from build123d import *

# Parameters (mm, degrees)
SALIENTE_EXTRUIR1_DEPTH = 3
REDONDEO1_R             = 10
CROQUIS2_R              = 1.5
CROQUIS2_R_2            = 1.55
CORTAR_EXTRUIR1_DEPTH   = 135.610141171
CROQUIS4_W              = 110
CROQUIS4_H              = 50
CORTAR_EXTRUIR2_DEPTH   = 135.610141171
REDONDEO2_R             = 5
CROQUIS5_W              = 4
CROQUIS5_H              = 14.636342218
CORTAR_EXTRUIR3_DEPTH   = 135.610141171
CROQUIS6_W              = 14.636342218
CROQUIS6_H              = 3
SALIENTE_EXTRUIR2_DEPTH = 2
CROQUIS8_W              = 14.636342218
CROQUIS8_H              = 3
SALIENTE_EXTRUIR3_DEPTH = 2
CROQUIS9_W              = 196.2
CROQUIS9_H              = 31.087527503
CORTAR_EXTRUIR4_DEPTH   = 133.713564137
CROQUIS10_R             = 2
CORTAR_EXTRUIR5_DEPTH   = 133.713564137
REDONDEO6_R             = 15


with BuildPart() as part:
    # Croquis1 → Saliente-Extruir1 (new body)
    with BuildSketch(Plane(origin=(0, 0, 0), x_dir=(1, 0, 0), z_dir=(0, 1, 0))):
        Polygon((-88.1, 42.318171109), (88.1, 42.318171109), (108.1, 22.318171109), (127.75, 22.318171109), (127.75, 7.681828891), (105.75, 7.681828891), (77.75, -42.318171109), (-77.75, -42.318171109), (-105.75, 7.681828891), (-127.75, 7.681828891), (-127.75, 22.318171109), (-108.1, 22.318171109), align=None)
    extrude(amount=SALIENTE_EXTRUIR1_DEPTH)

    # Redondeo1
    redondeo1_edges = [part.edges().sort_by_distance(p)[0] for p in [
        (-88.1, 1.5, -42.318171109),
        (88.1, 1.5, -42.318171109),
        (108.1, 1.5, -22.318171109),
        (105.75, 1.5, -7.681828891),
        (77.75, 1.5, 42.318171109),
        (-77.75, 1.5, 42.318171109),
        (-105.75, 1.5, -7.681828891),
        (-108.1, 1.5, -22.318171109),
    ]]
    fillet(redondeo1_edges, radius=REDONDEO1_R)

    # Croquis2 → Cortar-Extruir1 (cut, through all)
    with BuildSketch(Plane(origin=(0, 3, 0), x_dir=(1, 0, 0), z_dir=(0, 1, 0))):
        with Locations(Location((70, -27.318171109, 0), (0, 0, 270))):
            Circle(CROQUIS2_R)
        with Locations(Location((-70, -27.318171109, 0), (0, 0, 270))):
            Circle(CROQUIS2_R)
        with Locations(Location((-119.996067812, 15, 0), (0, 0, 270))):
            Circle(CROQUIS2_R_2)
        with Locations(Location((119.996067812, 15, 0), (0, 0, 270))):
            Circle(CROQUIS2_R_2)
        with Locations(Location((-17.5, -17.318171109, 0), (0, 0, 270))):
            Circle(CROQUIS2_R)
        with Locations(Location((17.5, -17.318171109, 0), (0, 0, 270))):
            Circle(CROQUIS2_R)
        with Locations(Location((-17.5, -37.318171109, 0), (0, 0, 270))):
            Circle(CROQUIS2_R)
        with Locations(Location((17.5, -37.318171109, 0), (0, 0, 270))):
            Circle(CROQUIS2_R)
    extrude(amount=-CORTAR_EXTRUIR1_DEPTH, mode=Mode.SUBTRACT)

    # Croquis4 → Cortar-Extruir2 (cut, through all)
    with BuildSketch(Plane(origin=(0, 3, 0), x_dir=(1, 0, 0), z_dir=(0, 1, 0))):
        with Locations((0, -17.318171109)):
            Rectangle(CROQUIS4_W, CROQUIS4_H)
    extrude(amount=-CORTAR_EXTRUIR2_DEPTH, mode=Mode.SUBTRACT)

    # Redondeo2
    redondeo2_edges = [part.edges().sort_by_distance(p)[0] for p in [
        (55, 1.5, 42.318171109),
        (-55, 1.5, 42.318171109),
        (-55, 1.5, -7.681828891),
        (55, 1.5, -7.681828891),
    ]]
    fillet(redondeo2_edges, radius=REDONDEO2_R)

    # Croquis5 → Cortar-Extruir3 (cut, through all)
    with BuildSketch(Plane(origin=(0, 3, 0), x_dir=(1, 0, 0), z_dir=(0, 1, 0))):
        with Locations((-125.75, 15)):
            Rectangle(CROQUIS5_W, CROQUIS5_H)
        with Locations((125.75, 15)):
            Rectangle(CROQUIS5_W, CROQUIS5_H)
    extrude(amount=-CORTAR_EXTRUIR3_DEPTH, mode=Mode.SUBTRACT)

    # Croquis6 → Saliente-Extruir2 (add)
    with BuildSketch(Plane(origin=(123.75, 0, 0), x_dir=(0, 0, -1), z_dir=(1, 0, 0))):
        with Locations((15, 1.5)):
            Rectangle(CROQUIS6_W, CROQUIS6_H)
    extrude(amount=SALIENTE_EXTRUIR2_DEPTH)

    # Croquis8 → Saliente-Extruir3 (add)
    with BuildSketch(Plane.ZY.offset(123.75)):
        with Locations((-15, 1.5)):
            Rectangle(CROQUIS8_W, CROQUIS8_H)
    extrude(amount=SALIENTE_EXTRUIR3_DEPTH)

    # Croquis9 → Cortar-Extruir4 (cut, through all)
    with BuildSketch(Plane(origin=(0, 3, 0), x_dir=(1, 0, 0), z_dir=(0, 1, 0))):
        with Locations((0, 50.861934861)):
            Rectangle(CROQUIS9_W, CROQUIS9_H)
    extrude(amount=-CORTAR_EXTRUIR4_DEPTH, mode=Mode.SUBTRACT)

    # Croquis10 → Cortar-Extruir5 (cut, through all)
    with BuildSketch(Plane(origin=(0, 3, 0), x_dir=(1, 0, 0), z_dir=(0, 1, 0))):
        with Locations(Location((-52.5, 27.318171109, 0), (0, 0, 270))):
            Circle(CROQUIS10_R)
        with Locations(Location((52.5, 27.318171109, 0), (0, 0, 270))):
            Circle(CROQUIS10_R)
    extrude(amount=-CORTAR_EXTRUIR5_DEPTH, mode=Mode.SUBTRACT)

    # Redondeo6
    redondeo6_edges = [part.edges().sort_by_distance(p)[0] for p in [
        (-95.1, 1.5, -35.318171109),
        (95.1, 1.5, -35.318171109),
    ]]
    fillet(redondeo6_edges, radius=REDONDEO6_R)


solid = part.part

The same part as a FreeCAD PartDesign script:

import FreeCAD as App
import Part
import Sketcher
Q = App.Units.Quantity


def edges_at(feature, points):
    """Names of the edges that pass closest to the given points."""
    edges = feature.Shape.Edges
    near = lambda p: min(range(len(edges)), key=lambda i: edges[i].distToShape(Part.Vertex(*p))[0])
    return sorted({f"Edge{near(p) + 1}" for p in points})

doc = App.newDocument("Part")
params = doc.addObject("Spreadsheet::Sheet", "Params")
for row, (alias, value) in enumerate([
    ("sketch1_width", "22 mm"),
    ("sketch1_width2", "176.2 mm"),
    ("sketch1_width3", "155.5 mm"),
    ("pad1_length", "3 mm"),
    ("fillet_radius", "10 mm"),
    ("sketch2_diameter", "3 mm"),
    ("sketch2_diameter2", "3.1 mm"),
    ("sketch3_width", "110 mm"),
    ("sketch3_height", "50 mm"),
    ("fillet2_radius", "5 mm"),
    ("sketch4_width", "4 mm"),
    ("sketch5_width", "3 mm"),
    ("pad2_length", "2 mm"),
    ("sketch6_width", "3 mm"),
    ("pad3_length", "2 mm"),
    ("sketch7_width", "196.2 mm"),
    ("sketch8_diameter", "4 mm"),
    ("fillet3_radius", "15 mm"),
], start=1):
    params.set(f"A{row}", alias)
    params.set(f"B{row}", "=" + value)
    params.setAlias(f"B{row}", alias)

body = doc.addObject("PartDesign::Body", "Body")

# Sketch on XZ plane
sketch1 = body.newObject("Sketcher::SketchObject", "Sketch")
sketch1.AttachmentSupport = (doc.getObject("XZ_Plane"), [""])
sketch1.MapMode = "FlatFace"
sketch1.addGeometry([
    Part.LineSegment(App.Vector(88, -42, 0), App.Vector(-88, -42, 0)),  # 0
    Part.LineSegment(App.Vector(-88, -42, 0), App.Vector(-108, -22, 0)),  # 1
    Part.LineSegment(App.Vector(-108, -22, 0), App.Vector(-128, -22, 0)),  # 2
    Part.LineSegment(App.Vector(-128, -22, 0), App.Vector(-128, -8, 0)),  # 3
    Part.LineSegment(App.Vector(-128, -8, 0), App.Vector(-106, -8, 0)),  # 4
    Part.LineSegment(App.Vector(-106, -8, 0), App.Vector(-78, 42, 0)),  # 5
    Part.LineSegment(App.Vector(-78, 42, 0), App.Vector(78, 42, 0)),  # 6
    Part.LineSegment(App.Vector(78, 42, 0), App.Vector(106, -8, 0)),  # 7
    Part.LineSegment(App.Vector(106, -8, 0), App.Vector(128, -8, 0)),  # 8
    Part.LineSegment(App.Vector(128, -8, 0), App.Vector(128, -22, 0)),  # 9
    Part.LineSegment(App.Vector(128, -22, 0), App.Vector(108, -22, 0)),  # 10
    Part.LineSegment(App.Vector(108, -22, 0), App.Vector(88, -42, 0)),  # 11
], False)
sketch1.addConstraint([
    Sketcher.Constraint("Coincident", 0, 2, 1, 1),
    Sketcher.Constraint("Coincident", 1, 2, 2, 1),
    Sketcher.Constraint("Coincident", 2, 2, 3, 1),
    Sketcher.Constraint("Coincident", 3, 2, 4, 1),
    Sketcher.Constraint("Coincident", 4, 2, 5, 1),
    Sketcher.Constraint("Coincident", 5, 2, 6, 1),
    Sketcher.Constraint("Coincident", 6, 2, 7, 1),
    Sketcher.Constraint("Coincident", 7, 2, 8, 1),
    Sketcher.Constraint("Coincident", 8, 2, 9, 1),
    Sketcher.Constraint("Coincident", 9, 2, 10, 1),
    Sketcher.Constraint("Coincident", 10, 2, 11, 1),
    Sketcher.Constraint("Coincident", 11, 2, 0, 1),
    Sketcher.Constraint("Horizontal", 0),
    Sketcher.Constraint("Horizontal", 2),
    Sketcher.Constraint("Vertical", 3),
    Sketcher.Constraint("Horizontal", 4),
    Sketcher.Constraint("Horizontal", 6),
    Sketcher.Constraint("Horizontal", 8),
    Sketcher.Constraint("Vertical", 9),
    Sketcher.Constraint("Horizontal", 10),
    Sketcher.Constraint("Symmetric", 4, 2, 7, 2, -2),
    Sketcher.Constraint("Symmetric", 2, 2, 9, 2, -2),
    Sketcher.Constraint("Perpendicular", 1, 11),
    Sketcher.Constraint("Equal", 2, 10),
    Sketcher.Constraint("Equal", 5, 7),
    Sketcher.Constraint("Equal", 1, 11),
    Sketcher.Constraint("DistanceX", 4, 1, 4, 2, Q("22 mm")),
    Sketcher.Constraint("DistanceX", 0, 2, 0, 1, Q("176.2 mm")),
    Sketcher.Constraint("DistanceX", 6, 1, 6, 2, Q("155.5 mm")),
    Sketcher.Constraint("DistanceX", 1, 2, 0, 2, Q("20 mm")),
    Sketcher.Constraint("DistanceX", 4, 2, 5, 2, Q("28 mm")),
    Sketcher.Constraint("DistanceY", 4, 2, 5, 2, Q("50 mm")),
    Sketcher.Constraint("DistanceY", 3, 1, 3, 2, Q("14.636342 mm")),
    Sketcher.Constraint("DistanceY", 0, 2, -1, 1, Q("42.318171 mm")),
])
sketch1.setExpression("Constraints[26]", "Params.sketch1_width")
sketch1.setExpression("Constraints[27]", "Params.sketch1_width2")
sketch1.setExpression("Constraints[28]", "Params.sketch1_width3")
pad1 = body.newObject("PartDesign::Pad", "Pad")
pad1.Profile = sketch1
pad1.setExpression("Length", "Params.pad1_length")
pad1.Reversed = True
doc.recompute()

fillet = body.newObject("PartDesign::Fillet", "Fillet")
fillet.Base = (pad1, edges_at(pad1, [
    (-88.1, 1.5, -42.318),
    (88.1, 1.5, -42.318),
    (108.1, 1.5, -22.318),
    (105.75, 1.5, -7.682),
    (77.75, 1.5, 42.318),
    (-77.75, 1.5, 42.318),
    (-105.75, 1.5, -7.682),
    (-108.1, 1.5, -22.318),
]))
fillet.setExpression("Radius", "Params.fillet_radius")

# Sketch on XZ plane
sketch2 = body.newObject("Sketcher::SketchObject", "Sketch001")
sketch2.AttachmentSupport = (doc.getObject("XZ_Plane"), [""])
sketch2.MapMode = "FlatFace"
sketch2.AttachmentOffset = App.Placement(App.Vector(0, 0, -3), App.Rotation())
sketch2.addGeometry([
    Part.Circle(App.Vector(70, 27.3, 0), App.Vector(0, 0, 1), 1.5),  # 0
    Part.Circle(App.Vector(-70, 27.3, 0), App.Vector(0, 0, 1), 1.5),  # 1
    Part.Circle(App.Vector(-120, -15, 0), App.Vector(0, 0, 1), 1.6),  # 2
    Part.Circle(App.Vector(120, -15, 0), App.Vector(0, 0, 1), 1.6),  # 3
    Part.Circle(App.Vector(-17.5, 17.3, 0), App.Vector(0, 0, 1), 1.5),  # 4
    Part.Circle(App.Vector(17.5, 17.3, 0), App.Vector(0, 0, 1), 1.5),  # 5
    Part.Circle(App.Vector(-17.5, 37.3, 0), App.Vector(0, 0, 1), 1.5),  # 6
    Part.Circle(App.Vector(17.5, 37.3, 0), App.Vector(0, 0, 1), 1.5),  # 7
], False)
sketch2.addConstraint([
    Sketcher.Constraint("Equal", 0, 1),
    Sketcher.Constraint("Equal", 2, 3),
    Sketcher.Constraint("Equal", 1, 4),
    Sketcher.Constraint("Equal", 4, 5),
    Sketcher.Constraint("Equal", 5, 6),
    Sketcher.Constraint("Equal", 6, 7),
    Sketcher.Constraint("Symmetric", 0, 3, 1, 3, -2),
    Sketcher.Constraint("Symmetric", 2, 3, 3, 3, -2),
    Sketcher.Constraint("Symmetric", 4, 3, 5, 3, -2),
    Sketcher.Constraint("Symmetric", 6, 3, 7, 3, -2),
    Sketcher.Constraint("Vertical", 4, 3, 6, 3),
    Sketcher.Constraint("Diameter", 0, Q("3 mm")),
    Sketcher.Constraint("Diameter", 2, Q("3.1 mm")),
    Sketcher.Constraint("DistanceX", -1, 1, 0, 3, Q("70 mm")),
    Sketcher.Constraint("DistanceY", 2, 3, -1, 1, Q("15 mm")),
    Sketcher.Constraint("DistanceY", 4, 3, 1, 3, Q("10 mm")),
    Sketcher.Constraint("DistanceX", 4, 3, 5, 3, Q("35 mm")),
    Sketcher.Constraint("DistanceY", 4, 3, 6, 3, Q("20 mm")),
    Sketcher.Constraint("DistanceY", -1, 1, 0, 3, Q("27.318171 mm")),
    Sketcher.Constraint("DistanceX", 2, 3, -1, 1, Q("119.996068 mm")),
])
sketch2.setExpression("Constraints[11]", "Params.sketch2_diameter")
sketch2.setExpression("Constraints[12]", "Params.sketch2_diameter2")
pocket1 = body.newObject("PartDesign::Pocket", "Pocket")
pocket1.Profile = sketch2
pocket1.Type = "ThroughAll"
pocket1.Reversed = True

# Sketch on XZ plane
sketch3 = body.newObject("Sketcher::SketchObject", "Sketch002")
sketch3.AttachmentSupport = (doc.getObject("XZ_Plane"), [""])
sketch3.MapMode = "FlatFace"
sketch3.AttachmentOffset = App.Placement(App.Vector(0, 0, -3), App.Rotation())
sketch3.addGeometry([
    Part.LineSegment(App.Vector(-55, -8, 0), App.Vector(-55, 42, 0)),
    Part.LineSegment(App.Vector(-55, 42, 0), App.Vector(55, 42, 0)),
    Part.LineSegment(App.Vector(55, 42, 0), App.Vector(55, -8, 0)),
    Part.LineSegment(App.Vector(55, -8, 0), App.Vector(-55, -8, 0)),
], False)
sketch3.addConstraint([
    Sketcher.Constraint("Coincident", 0, 2, 1, 1),
    Sketcher.Constraint("Coincident", 1, 2, 2, 1),
    Sketcher.Constraint("Coincident", 2, 2, 3, 1),
    Sketcher.Constraint("Coincident", 3, 2, 0, 1),
    Sketcher.Constraint("Vertical", 0),
    Sketcher.Constraint("Horizontal", 1),
    Sketcher.Constraint("Vertical", 2),
    Sketcher.Constraint("Horizontal", 3),
    Sketcher.Constraint("DistanceX", 1, 1, 1, 2, Q("110 mm")),
    Sketcher.Constraint("DistanceY", 0, 1, 0, 2, Q("50 mm")),
    Sketcher.Constraint("DistanceX", 0, 2, -1, 1, Q("55 mm")),
    Sketcher.Constraint("DistanceY", -1, 1, 0, 2, Q("42.318171 mm")),
])
sketch3.setExpression("Constraints[8]", "Params.sketch3_width")
sketch3.setExpression("Constraints[9]", "Params.sketch3_height")
pocket2 = body.newObject("PartDesign::Pocket", "Pocket001")
pocket2.Profile = sketch3
pocket2.Type = "ThroughAll"
pocket2.Reversed = True
doc.recompute()

fillet2 = body.newObject("PartDesign::Fillet", "Fillet001")
fillet2.Base = (pocket2, edges_at(pocket2, [
    (55, 1.5, 42.318),
    (-55, 1.5, 42.318),
    (-55, 1.5, -7.682),
    (55, 1.5, -7.682),
]))
fillet2.setExpression("Radius", "Params.fillet2_radius")

# Sketch on XZ plane
sketch4 = body.newObject("Sketcher::SketchObject", "Sketch003")
sketch4.AttachmentSupport = (doc.getObject("XZ_Plane"), [""])
sketch4.MapMode = "FlatFace"
sketch4.AttachmentOffset = App.Placement(App.Vector(0, 0, -3), App.Rotation())
sketch4.addGeometry([
    Part.LineSegment(App.Vector(-127.8, -22.3, 0), App.Vector(-127.8, -7.7, 0)),  # 0
    Part.LineSegment(App.Vector(-127.8, -7.7, 0), App.Vector(-123.8, -7.7, 0)),  # 1
    Part.LineSegment(App.Vector(-123.8, -7.7, 0), App.Vector(-123.8, -22.3, 0)),  # 2
    Part.LineSegment(App.Vector(-123.8, -22.3, 0), App.Vector(-127.8, -22.3, 0)),  # 3
    Part.LineSegment(App.Vector(123.8, -22.3, 0), App.Vector(123.8, -7.7, 0)),  # 4
    Part.LineSegment(App.Vector(123.8, -7.7, 0), App.Vector(127.8, -7.7, 0)),  # 5
    Part.LineSegment(App.Vector(127.8, -7.7, 0), App.Vector(127.8, -22.3, 0)),  # 6
    Part.LineSegment(App.Vector(127.8, -22.3, 0), App.Vector(123.8, -22.3, 0)),  # 7
], False)
sketch4.addConstraint([
    Sketcher.Constraint("Coincident", 0, 2, 1, 1),
    Sketcher.Constraint("Coincident", 1, 2, 2, 1),
    Sketcher.Constraint("Coincident", 2, 2, 3, 1),
    Sketcher.Constraint("Coincident", 3, 2, 0, 1),
    Sketcher.Constraint("Coincident", 4, 2, 5, 1),
    Sketcher.Constraint("Coincident", 5, 2, 6, 1),
    Sketcher.Constraint("Coincident", 6, 2, 7, 1),
    Sketcher.Constraint("Coincident", 7, 2, 4, 1),
    Sketcher.Constraint("Vertical", 0),
    Sketcher.Constraint("Horizontal", 1),
    Sketcher.Constraint("Vertical", 2),
    Sketcher.Constraint("Horizontal", 3),
    Sketcher.Constraint("Vertical", 4),
    Sketcher.Constraint("Horizontal", 5),
    Sketcher.Constraint("Vertical", 6),
    Sketcher.Constraint("Horizontal", 7),
    Sketcher.Constraint("Symmetric", 1, 2, 4, 2, -2),
    Sketcher.Constraint("Symmetric", 3, 2, 6, 2, -2),
    Sketcher.Constraint("DistanceX", 1, 1, 1, 2, Q("4 mm")),
    Sketcher.Constraint("DistanceX", 1, 2, 4, 2, Q("247.5 mm")),
    Sketcher.Constraint("DistanceY", 0, 1, 0, 2, Q("14.636342 mm")),
    Sketcher.Constraint("DistanceY", 0, 2, -1, 1, Q("7.681829 mm")),
])
sketch4.setExpression("Constraints[18]", "Params.sketch4_width")
pocket3 = body.newObject("PartDesign::Pocket", "Pocket002")
pocket3.Profile = sketch4
pocket3.Type = "ThroughAll"
pocket3.Reversed = True

# Sketch on YZ plane
sketch5 = body.newObject("Sketcher::SketchObject", "Sketch004")
sketch5.AttachmentSupport = (doc.getObject("YZ_Plane"), [""])
sketch5.MapMode = "FlatFace"
sketch5.AttachmentOffset = App.Placement(App.Vector(0, 0, 123.75), App.Rotation())
sketch5.addGeometry([
    Part.LineSegment(App.Vector(3, -7.7, 0), App.Vector(0, -7.7, 0)),
    Part.LineSegment(App.Vector(0, -7.7, 0), App.Vector(0, -22.3, 0)),
    Part.LineSegment(App.Vector(0, -22.3, 0), App.Vector(3, -22.3, 0)),
    Part.LineSegment(App.Vector(3, -22.3, 0), App.Vector(3, -7.7, 0)),
], False)
sketch5.addConstraint([
    Sketcher.Constraint("Coincident", 0, 2, 1, 1),
    Sketcher.Constraint("Coincident", 1, 2, 2, 1),
    Sketcher.Constraint("Coincident", 2, 2, 3, 1),
    Sketcher.Constraint("Coincident", 3, 2, 0, 1),
    Sketcher.Constraint("Horizontal", 0),
    Sketcher.Constraint("Vertical", 1),
    Sketcher.Constraint("Horizontal", 2),
    Sketcher.Constraint("Vertical", 3),
    Sketcher.Constraint("PointOnObject", 0, 2, -2),
    Sketcher.Constraint("DistanceX", 0, 2, 0, 1, Q("3 mm")),
    Sketcher.Constraint("DistanceY", 1, 2, 1, 1, Q("14.636342 mm")),
    Sketcher.Constraint("DistanceY", 0, 2, -1, 1, Q("7.681829 mm")),
])
sketch5.setExpression("Constraints[9]", "Params.sketch5_width")
pad2 = body.newObject("PartDesign::Pad", "Pad001")
pad2.Profile = sketch5
pad2.setExpression("Length", "Params.pad2_length")

# Sketch on YZ plane
sketch6 = body.newObject("Sketcher::SketchObject", "Sketch005")
sketch6.AttachmentSupport = (doc.getObject("YZ_Plane"), [""])
sketch6.MapMode = "FlatFace"
sketch6.AttachmentOffset = App.Placement(App.Vector(0, 0, -123.75), App.Rotation())
sketch6.addGeometry([
    Part.LineSegment(App.Vector(3, -22.3, 0), App.Vector(0, -22.3, 0)),
    Part.LineSegment(App.Vector(0, -22.3, 0), App.Vector(0, -7.7, 0)),
    Part.LineSegment(App.Vector(0, -7.7, 0), App.Vector(3, -7.7, 0)),
    Part.LineSegment(App.Vector(3, -7.7, 0), App.Vector(3, -22.3, 0)),
], False)
sketch6.addConstraint([
    Sketcher.Constraint("Coincident", 0, 2, 1, 1),
    Sketcher.Constraint("Coincident", 1, 2, 2, 1),
    Sketcher.Constraint("Coincident", 2, 2, 3, 1),
    Sketcher.Constraint("Coincident", 3, 2, 0, 1),
    Sketcher.Constraint("Horizontal", 0),
    Sketcher.Constraint("Vertical", 1),
    Sketcher.Constraint("Horizontal", 2),
    Sketcher.Constraint("Vertical", 3),
    Sketcher.Constraint("PointOnObject", 0, 2, -2),
    Sketcher.Constraint("DistanceX", 0, 2, 0, 1, Q("3 mm")),
    Sketcher.Constraint("DistanceY", 1, 1, 1, 2, Q("14.636342 mm")),
    Sketcher.Constraint("DistanceY", 0, 2, -1, 1, Q("22.318171 mm")),
])
sketch6.setExpression("Constraints[9]", "Params.sketch6_width")
pad3 = body.newObject("PartDesign::Pad", "Pad002")
pad3.Profile = sketch6
pad3.setExpression("Length", "Params.pad3_length")
pad3.Reversed = True

# Sketch on XZ plane
sketch7 = body.newObject("Sketcher::SketchObject", "Sketch006")
sketch7.AttachmentSupport = (doc.getObject("XZ_Plane"), [""])
sketch7.MapMode = "FlatFace"
sketch7.AttachmentOffset = App.Placement(App.Vector(0, 0, -3), App.Rotation())
sketch7.addGeometry([
    Part.LineSegment(App.Vector(-98, -66, 0), App.Vector(-98, -35, 0)),
    Part.LineSegment(App.Vector(-98, -35, 0), App.Vector(98, -35, 0)),
    Part.LineSegment(App.Vector(98, -35, 0), App.Vector(98, -66, 0)),
    Part.LineSegment(App.Vector(98, -66, 0), App.Vector(-98, -66, 0)),
], False)
sketch7.addConstraint([
    Sketcher.Constraint("Coincident", 0, 2, 1, 1),
    Sketcher.Constraint("Coincident", 1, 2, 2, 1),
    Sketcher.Constraint("Coincident", 2, 2, 3, 1),
    Sketcher.Constraint("Coincident", 3, 2, 0, 1),
    Sketcher.Constraint("Vertical", 0),
    Sketcher.Constraint("Horizontal", 1),
    Sketcher.Constraint("Vertical", 2),
    Sketcher.Constraint("Horizontal", 3),
    Sketcher.Constraint("DistanceX", 1, 1, 1, 2, Q("196.2 mm")),
    Sketcher.Constraint("DistanceX", 0, 2, -1, 1, Q("98.1 mm")),
    Sketcher.Constraint("DistanceY", 2, 2, -1, 1, Q("66.405699 mm")),
    Sketcher.Constraint("DistanceY", 0, 1, 0, 2, Q("31.087528 mm")),
])
sketch7.setExpression("Constraints[8]", "Params.sketch7_width")
pocket4 = body.newObject("PartDesign::Pocket", "Pocket003")
pocket4.Profile = sketch7
pocket4.Type = "ThroughAll"
pocket4.Reversed = True

# Sketch on XZ plane
sketch8 = body.newObject("Sketcher::SketchObject", "Sketch007")
sketch8.AttachmentSupport = (doc.getObject("XZ_Plane"), [""])
sketch8.MapMode = "FlatFace"
sketch8.AttachmentOffset = App.Placement(App.Vector(0, 0, -3), App.Rotation())
sketch8.addGeometry([
    Part.Circle(App.Vector(-52.5, -27.3, 0), App.Vector(0, 0, 1), 2),
    Part.Circle(App.Vector(52.5, -27.3, 0), App.Vector(0, 0, 1), 2),
], False)
sketch8.addConstraint([
    Sketcher.Constraint("Equal", 0, 1),
    Sketcher.Constraint("Symmetric", 0, 3, 1, 3, -2),
    Sketcher.Constraint("Diameter", 0, Q("4 mm")),
    Sketcher.Constraint("DistanceX", 0, 3, 1, 3, Q("105 mm")),
    Sketcher.Constraint("DistanceY", 0, 3, -1, 1, Q("27.318171 mm")),
])
sketch8.setExpression("Constraints[2]", "Params.sketch8_diameter")
pocket5 = body.newObject("PartDesign::Pocket", "Pocket004")
pocket5.Profile = sketch8
pocket5.Type = "ThroughAll"
pocket5.Reversed = True
doc.recompute()

fillet3 = body.newObject("PartDesign::Fillet", "Fillet002")
fillet3.Base = (pocket5, edges_at(pocket5, [(-95.1, 1.5, -35.318), (95.1, 1.5, -35.318)]))
fillet3.setExpression("Radius", "Params.fillet3_radius")

doc.recompute()
